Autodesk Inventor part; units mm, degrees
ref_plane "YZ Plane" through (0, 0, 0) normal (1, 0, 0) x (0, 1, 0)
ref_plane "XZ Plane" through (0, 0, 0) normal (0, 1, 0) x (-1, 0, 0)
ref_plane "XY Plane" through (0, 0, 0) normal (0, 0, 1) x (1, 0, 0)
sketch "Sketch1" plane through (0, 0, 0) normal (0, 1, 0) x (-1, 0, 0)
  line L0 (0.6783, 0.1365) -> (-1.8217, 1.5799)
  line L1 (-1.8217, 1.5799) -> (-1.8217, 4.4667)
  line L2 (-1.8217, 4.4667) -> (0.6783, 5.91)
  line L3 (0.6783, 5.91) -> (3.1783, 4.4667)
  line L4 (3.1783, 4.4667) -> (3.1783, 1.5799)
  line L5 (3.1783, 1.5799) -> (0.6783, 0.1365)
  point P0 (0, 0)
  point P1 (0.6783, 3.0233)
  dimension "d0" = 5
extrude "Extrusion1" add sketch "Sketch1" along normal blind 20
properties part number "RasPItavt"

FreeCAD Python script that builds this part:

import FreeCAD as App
import Part
import Sketcher
Q = App.Units.Quantity

doc = App.newDocument("Part")
body = doc.addObject("PartDesign::Body", "Body")

# Sketch on XZ plane
sketch1 = body.newObject("Sketcher::SketchObject", "Sketch")
sketch1.AttachmentSupport = (doc.getObject("XZ_Plane"), [""])
sketch1.MapMode = "FlatFace"
sketch1.addGeometry([
    Part.LineSegment(App.Vector(1.8, 1.6, 0), App.Vector(-0.7, 0.1, 0)),  # 0
    Part.LineSegment(App.Vector(-0.7, 0.1, 0), App.Vector(-3.2, 1.6, 0)),  # 1
    Part.LineSegment(App.Vector(-3.2, 1.6, 0), App.Vector(-3.2, 4.5, 0)),  # 2
    Part.LineSegment(App.Vector(-3.2, 4.5, 0), App.Vector(-0.7, 5.9, 0)),  # 3
    Part.LineSegment(App.Vector(-0.7, 5.9, 0), App.Vector(1.8, 4.5, 0)),  # 4
    Part.LineSegment(App.Vector(1.8, 4.5, 0), App.Vector(1.8, 1.6, 0)),  # 5
], False)
sketch1.addConstraint([
    Sketcher.Constraint("Coincident", 0, 2, 1, 1),
    Sketcher.Constraint("Coincident", 1, 2, 2, 1),
    Sketcher.Constraint("Coincident", 2, 2, 3, 1),
    Sketcher.Constraint("Coincident", 3, 2, 4, 1),
    Sketcher.Constraint("Coincident", 4, 2, 5, 1),
    Sketcher.Constraint("Coincident", 5, 2, 0, 1),
    Sketcher.Constraint("Vertical", 2),
    Sketcher.Constraint("Vertical", 5),
    Sketcher.Constraint("Parallel", 0, 3),
    Sketcher.Constraint("Parallel", 1, 4),
    Sketcher.Constraint("Horizontal", 2, 2, 4, 2),
    Sketcher.Constraint("Horizontal", 1, 2, 5, 2),
    Sketcher.Constraint("Vertical", 0, 2, 3, 2),
    Sketcher.Constraint("DistanceX", 2, 2, 4, 2, 5.0),
    Sketcher.Constraint("Angle", 0, Q("-149.9996 deg")),
    Sketcher.Constraint("DistanceY", -1, 1, 1, 2, 1.58),
    Sketcher.Constraint("DistanceY", -1, 1, 3, 2, 5.91),
    Sketcher.Constraint("DistanceX", 0, 2, -1, 1, 0.6783),
])
pad1 = body.newObject("PartDesign::Pad", "Pad")
pad1.Profile = sketch1
pad1.Length = 20
pad1.Reversed = True

doc.recompute()
